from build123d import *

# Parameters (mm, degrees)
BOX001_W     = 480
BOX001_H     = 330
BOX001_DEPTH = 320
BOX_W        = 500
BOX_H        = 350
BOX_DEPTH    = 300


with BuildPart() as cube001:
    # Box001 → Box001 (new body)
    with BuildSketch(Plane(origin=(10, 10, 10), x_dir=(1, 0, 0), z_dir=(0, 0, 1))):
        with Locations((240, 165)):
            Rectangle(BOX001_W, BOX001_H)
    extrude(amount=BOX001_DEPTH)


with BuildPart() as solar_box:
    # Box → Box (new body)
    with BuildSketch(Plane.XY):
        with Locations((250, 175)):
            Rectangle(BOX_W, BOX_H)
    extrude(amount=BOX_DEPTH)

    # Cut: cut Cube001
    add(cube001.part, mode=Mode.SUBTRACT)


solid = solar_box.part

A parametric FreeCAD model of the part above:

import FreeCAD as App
import Part
import Sketcher
from FreeCAD import Vector
Q = App.Units.Quantity

doc = App.newDocument("Part")
body = doc.addObject("PartDesign::Body", "Body")

sketch1 = doc.addObject("Sketcher::SketchObject", "Sketch")
body.addObject(sketch1)
sketch1.AttachmentSupport = (doc.XY_Plane, [""])
sketch1.MapMode = "FlatFace"
sketch1.AttachmentOffset = App.Placement(Vector(0, 0, 10), App.Rotation())
sketch1.addGeometry([
    Part.LineSegment(Vector(10, 340, 0), Vector(10, 10, 0)),
    Part.LineSegment(Vector(10, 10, 0), Vector(490, 10, 0)),
    Part.LineSegment(Vector(490, 10, 0), Vector(490, 340, 0)),
    Part.LineSegment(Vector(490, 340, 0), Vector(10, 340, 0)),
], False)
sketch1.addConstraint([
    Sketcher.Constraint("Coincident", 0, 2, 1, 1),
    Sketcher.Constraint("Coincident", 1, 2, 2, 1),
    Sketcher.Constraint("Coincident", 2, 2, 3, 1),
    Sketcher.Constraint("Coincident", 3, 2, 0, 1),
    Sketcher.Constraint("Vertical", 0),
    Sketcher.Constraint("Horizontal", 1),
    Sketcher.Constraint("Vertical", 2),
    Sketcher.Constraint("Horizontal", 3),
    Sketcher.Constraint("DistanceX", 1, 1, 1, 2, Q("480 mm")),
    Sketcher.Constraint("DistanceY", 0, 2, 0, 1, Q("330 mm")),
    Sketcher.Constraint("DistanceX", -1, 1, 0, 2, Q("10 mm")),
    Sketcher.Constraint("DistanceY", -1, 1, 0, 2, Q("10 mm")),
])
pad1 = doc.addObject("PartDesign::Pad", "Pad")
body.addObject(pad1)
pad1.Profile = sketch1
pad1.Length = 320
body2 = doc.addObject("PartDesign::Body", "Body001")

sketch2 = doc.addObject("Sketcher::SketchObject", "Sketch001")
body2.addObject(sketch2)
sketch2.AttachmentSupport = (doc.getObject("XY_Plane001"), [""])
sketch2.MapMode = "FlatFace"
sketch2.addGeometry([
    Part.LineSegment(Vector(0, 350, 0), Vector(0, 0, 0)),
    Part.LineSegment(Vector(0, 0, 0), Vector(500, 0, 0)),
    Part.LineSegment(Vector(500, 0, 0), Vector(500, 350, 0)),
    Part.LineSegment(Vector(500, 350, 0), Vector(0, 350, 0)),
], False)
sketch2.addConstraint([
    Sketcher.Constraint("Coincident", 0, 2, 1, 1),
    Sketcher.Constraint("Coincident", 1, 2, 2, 1),
    Sketcher.Constraint("Coincident", 2, 2, 3, 1),
    Sketcher.Constraint("Coincident", 3, 2, 0, 1),
    Sketcher.Constraint("Vertical", 0),
    Sketcher.Constraint("Horizontal", 1),
    Sketcher.Constraint("Vertical", 2),
    Sketcher.Constraint("Horizontal", 3),
    Sketcher.Constraint("Coincident", 0, 2, -1, 1),
    Sketcher.Constraint("DistanceX", 1, 1, 1, 2, Q("500 mm")),
    Sketcher.Constraint("DistanceY", 0, 2, 0, 1, Q("350 mm")),
])
pad2 = doc.addObject("PartDesign::Pad", "Pad001")
body2.addObject(pad2)
pad2.Profile = sketch2
pad2.Length = 300
doc.recompute()

boolean = doc.addObject("PartDesign::Boolean", "Boolean")
body2.addObject(boolean)
boolean.Type = "Cut"
boolean.addObjects([body])

doc.recompute()
